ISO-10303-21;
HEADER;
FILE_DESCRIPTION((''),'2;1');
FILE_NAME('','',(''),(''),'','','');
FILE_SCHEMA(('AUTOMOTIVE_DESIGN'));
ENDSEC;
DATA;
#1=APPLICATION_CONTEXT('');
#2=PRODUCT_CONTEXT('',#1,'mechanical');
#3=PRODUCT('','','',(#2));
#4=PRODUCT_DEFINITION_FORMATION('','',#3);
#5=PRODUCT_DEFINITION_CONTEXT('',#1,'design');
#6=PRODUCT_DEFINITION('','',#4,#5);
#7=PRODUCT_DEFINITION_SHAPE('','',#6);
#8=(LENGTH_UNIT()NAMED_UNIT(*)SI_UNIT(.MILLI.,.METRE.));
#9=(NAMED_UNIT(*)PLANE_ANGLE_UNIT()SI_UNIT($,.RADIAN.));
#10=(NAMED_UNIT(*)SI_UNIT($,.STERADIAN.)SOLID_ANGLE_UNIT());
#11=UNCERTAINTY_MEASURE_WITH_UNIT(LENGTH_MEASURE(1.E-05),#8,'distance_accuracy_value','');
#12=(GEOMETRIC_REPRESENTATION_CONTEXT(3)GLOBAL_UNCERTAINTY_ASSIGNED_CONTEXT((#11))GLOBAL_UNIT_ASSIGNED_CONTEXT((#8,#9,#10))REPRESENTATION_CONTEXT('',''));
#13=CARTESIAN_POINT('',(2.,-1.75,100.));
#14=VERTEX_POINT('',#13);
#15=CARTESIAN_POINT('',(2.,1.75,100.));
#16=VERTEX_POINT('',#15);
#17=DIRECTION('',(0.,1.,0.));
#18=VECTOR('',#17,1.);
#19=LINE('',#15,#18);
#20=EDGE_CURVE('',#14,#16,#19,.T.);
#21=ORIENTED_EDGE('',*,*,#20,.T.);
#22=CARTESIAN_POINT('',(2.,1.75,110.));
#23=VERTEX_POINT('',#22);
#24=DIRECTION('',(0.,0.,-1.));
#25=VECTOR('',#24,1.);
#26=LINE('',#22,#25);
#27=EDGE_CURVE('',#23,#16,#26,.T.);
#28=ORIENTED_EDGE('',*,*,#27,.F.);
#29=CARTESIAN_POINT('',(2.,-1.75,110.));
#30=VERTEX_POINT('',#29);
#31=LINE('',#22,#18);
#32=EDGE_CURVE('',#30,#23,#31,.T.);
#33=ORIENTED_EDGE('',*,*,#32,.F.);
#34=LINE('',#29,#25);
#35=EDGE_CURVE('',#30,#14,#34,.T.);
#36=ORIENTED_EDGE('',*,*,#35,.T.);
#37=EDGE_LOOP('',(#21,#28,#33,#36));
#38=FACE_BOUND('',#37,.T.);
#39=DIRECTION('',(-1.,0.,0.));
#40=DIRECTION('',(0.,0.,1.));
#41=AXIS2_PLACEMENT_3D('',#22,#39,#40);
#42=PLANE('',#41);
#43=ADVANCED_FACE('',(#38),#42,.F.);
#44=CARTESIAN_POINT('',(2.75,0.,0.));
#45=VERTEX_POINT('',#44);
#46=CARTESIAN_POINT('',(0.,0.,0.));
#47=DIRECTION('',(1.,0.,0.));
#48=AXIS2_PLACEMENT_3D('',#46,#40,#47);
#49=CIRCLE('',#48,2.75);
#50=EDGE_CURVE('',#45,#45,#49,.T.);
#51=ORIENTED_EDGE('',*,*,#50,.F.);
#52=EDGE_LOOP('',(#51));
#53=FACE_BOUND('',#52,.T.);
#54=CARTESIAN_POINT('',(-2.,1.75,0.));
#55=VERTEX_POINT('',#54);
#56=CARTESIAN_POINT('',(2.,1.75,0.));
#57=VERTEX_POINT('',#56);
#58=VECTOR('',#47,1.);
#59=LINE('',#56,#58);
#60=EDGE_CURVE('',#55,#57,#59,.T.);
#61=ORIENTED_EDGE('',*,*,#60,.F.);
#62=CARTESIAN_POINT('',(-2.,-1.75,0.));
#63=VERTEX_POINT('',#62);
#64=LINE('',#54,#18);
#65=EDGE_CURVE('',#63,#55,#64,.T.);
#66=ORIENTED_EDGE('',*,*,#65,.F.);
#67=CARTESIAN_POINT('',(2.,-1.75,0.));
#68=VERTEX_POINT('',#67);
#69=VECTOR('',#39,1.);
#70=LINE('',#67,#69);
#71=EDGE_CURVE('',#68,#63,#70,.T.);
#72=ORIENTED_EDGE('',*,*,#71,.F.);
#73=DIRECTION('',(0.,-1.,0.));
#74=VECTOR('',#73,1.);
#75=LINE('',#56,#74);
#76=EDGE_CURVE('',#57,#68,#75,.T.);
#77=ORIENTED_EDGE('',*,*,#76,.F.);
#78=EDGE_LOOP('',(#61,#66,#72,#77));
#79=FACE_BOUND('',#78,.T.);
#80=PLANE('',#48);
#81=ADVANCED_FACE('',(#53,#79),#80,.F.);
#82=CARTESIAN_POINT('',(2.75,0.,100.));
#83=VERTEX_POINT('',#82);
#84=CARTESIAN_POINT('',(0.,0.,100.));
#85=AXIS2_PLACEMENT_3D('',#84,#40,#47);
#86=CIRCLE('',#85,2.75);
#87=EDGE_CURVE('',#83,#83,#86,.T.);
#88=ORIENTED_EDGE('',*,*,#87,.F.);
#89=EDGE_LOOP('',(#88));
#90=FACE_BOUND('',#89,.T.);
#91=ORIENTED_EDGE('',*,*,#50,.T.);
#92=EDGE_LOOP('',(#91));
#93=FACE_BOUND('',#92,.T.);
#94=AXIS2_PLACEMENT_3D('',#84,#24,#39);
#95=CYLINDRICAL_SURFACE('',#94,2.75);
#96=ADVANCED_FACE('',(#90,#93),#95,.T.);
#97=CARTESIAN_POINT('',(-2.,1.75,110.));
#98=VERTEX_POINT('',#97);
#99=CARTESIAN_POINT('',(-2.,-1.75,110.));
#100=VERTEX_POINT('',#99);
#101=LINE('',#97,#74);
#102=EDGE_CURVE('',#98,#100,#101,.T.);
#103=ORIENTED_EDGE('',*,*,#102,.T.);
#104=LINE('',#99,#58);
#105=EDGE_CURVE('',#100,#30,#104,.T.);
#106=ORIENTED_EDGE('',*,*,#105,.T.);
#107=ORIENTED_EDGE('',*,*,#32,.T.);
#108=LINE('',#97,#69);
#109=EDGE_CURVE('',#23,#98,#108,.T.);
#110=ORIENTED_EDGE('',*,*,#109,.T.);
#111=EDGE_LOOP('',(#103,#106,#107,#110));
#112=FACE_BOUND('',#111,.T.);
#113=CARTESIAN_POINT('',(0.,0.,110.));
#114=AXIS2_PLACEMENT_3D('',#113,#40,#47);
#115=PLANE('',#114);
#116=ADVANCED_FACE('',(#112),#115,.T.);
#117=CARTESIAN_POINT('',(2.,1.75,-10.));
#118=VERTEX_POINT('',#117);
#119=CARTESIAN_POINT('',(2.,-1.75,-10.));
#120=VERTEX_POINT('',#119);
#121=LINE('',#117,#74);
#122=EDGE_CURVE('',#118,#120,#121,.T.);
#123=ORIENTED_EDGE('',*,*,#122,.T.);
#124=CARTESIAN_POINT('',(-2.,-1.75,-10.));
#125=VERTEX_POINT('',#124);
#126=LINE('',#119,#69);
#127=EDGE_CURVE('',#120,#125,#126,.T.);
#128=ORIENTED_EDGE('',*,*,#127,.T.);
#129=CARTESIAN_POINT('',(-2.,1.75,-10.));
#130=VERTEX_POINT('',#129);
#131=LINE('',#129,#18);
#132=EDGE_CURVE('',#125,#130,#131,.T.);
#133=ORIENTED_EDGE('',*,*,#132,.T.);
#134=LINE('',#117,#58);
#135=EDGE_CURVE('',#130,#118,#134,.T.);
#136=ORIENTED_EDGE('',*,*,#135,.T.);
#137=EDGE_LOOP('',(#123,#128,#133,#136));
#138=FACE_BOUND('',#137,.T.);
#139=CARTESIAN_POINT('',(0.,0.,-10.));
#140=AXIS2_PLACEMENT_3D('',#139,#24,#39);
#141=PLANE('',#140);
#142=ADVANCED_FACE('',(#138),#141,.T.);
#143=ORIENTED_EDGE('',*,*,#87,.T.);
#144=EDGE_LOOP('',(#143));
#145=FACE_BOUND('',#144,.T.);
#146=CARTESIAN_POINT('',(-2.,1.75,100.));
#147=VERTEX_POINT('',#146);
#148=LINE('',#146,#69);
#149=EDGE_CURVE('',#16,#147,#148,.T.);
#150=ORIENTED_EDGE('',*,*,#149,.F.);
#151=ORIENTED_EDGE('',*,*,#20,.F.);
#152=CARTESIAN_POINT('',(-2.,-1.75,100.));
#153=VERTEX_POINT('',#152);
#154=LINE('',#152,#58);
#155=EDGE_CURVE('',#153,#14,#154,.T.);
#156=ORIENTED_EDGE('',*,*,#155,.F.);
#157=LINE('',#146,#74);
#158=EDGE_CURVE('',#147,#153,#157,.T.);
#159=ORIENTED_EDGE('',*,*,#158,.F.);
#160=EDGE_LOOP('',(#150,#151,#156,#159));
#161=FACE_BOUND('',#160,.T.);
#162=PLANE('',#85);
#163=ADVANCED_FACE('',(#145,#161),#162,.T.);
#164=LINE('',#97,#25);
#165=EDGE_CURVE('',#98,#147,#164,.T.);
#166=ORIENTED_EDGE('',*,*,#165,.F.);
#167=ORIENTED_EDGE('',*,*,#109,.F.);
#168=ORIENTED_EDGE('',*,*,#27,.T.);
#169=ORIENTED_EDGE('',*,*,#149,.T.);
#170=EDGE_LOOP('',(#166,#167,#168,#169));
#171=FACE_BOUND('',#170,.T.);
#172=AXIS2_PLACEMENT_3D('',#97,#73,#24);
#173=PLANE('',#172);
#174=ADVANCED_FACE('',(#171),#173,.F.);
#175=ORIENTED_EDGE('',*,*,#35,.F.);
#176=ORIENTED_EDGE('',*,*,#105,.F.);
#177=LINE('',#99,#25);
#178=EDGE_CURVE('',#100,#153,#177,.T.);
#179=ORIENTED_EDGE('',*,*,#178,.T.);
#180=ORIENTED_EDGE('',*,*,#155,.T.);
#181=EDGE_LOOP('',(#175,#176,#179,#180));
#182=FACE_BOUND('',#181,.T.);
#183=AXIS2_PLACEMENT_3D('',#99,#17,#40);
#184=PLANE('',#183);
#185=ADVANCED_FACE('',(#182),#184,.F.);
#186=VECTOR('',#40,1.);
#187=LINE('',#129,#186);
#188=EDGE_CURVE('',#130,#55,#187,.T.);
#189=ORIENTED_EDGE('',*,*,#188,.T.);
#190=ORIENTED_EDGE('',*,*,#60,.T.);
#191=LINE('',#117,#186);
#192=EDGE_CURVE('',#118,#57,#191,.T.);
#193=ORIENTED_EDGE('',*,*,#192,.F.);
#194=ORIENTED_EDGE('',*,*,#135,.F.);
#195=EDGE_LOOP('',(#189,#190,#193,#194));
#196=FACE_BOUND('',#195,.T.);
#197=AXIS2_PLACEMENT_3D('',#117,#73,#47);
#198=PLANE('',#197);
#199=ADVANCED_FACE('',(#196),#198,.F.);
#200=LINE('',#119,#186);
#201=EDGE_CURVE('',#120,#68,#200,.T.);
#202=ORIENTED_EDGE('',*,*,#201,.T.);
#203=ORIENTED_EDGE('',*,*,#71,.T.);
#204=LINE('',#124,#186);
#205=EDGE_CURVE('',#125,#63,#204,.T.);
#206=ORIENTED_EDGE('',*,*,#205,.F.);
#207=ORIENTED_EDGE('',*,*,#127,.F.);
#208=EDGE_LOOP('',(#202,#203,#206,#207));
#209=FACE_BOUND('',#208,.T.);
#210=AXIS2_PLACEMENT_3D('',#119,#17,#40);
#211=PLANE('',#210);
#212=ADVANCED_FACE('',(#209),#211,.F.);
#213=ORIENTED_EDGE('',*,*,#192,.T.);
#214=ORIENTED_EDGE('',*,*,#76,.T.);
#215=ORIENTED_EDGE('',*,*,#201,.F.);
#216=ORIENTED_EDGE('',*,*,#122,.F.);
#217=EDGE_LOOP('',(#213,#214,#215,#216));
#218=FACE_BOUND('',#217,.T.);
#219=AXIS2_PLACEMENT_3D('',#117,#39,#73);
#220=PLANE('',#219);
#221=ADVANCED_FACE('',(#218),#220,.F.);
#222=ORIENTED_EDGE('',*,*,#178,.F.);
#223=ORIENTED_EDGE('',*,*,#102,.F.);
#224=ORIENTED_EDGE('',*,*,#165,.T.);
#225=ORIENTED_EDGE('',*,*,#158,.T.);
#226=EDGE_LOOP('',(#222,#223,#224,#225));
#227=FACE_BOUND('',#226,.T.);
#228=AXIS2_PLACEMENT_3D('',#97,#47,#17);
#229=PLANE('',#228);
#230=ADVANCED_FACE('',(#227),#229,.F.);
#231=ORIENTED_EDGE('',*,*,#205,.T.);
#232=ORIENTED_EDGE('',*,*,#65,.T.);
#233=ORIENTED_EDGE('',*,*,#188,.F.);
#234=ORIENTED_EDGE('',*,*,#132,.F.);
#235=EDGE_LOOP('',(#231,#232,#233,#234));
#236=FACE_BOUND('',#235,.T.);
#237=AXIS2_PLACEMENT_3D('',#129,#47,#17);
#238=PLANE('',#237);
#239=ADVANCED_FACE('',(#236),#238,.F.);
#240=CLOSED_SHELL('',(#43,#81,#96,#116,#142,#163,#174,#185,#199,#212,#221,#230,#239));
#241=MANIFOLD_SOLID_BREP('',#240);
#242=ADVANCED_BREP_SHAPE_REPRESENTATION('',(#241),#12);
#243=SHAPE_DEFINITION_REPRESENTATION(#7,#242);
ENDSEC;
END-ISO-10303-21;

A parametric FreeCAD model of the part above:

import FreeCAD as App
import Part
import Sketcher
Q = App.Units.Quantity


def add_polygon(sketch, points):
    """Adds a closed chain of lines whose ends are joined by coincident constraints."""
    first, n = sketch.GeometryCount, len(points)
    for a, b in zip(points, points[1:] + points[:1]):
        sketch.addGeometry(Part.LineSegment(App.Vector(*a, 0), App.Vector(*b, 0)), False)
    for i in range(n):
        sketch.addConstraint(Sketcher.Constraint("Coincident", first + i, 2, first + (i + 1) % n, 1))

doc = App.newDocument("Part")
params = doc.addObject("Spreadsheet::Sheet", "Params")
for row, (alias, value) in enumerate([
    ("sketch1_diameter", "5.5 mm"),
    ("pad1_length", "100 mm"),
    ("sketch2_width", "4 mm"),
    ("sketch2_height", "3.5 mm"),
    ("pad2_length", "10 mm"),
    ("sketch3_width", "4 mm"),
    ("sketch3_height", "3.5 mm"),
    ("pad3_length", "10 mm"),
], start=1):
    params.set(f"A{row}", alias)
    params.set(f"B{row}", "=" + value)
    params.setAlias(f"B{row}", alias)

body = doc.addObject("PartDesign::Body", "Body")

sketch1 = body.newObject("Sketcher::SketchObject", "Sketch")
sketch1.AttachmentSupport = (doc.getObject("XY_Plane"), [""])
sketch1.MapMode = "FlatFace"
sketch1.addGeometry(Part.Circle(App.Vector(0, 0, 0), App.Vector(0, 0, 1), 2.8), False)
sketch1.addConstraint(Sketcher.Constraint("Coincident", 0, 3, -1, 1))
sketch1.addConstraint(Sketcher.Constraint("Diameter", 0, Q("5.5 mm")))
sketch1.setExpression("Constraints[1]", "Params.sketch1_diameter")
pad1 = body.newObject("PartDesign::Pad", "Pad")
pad1.Profile = sketch1
pad1.setExpression("Length", "Params.pad1_length")

sketch2 = body.newObject("Sketcher::SketchObject", "Sketch001")
sketch2.AttachmentSupport = (doc.getObject("XY_Plane"), [""])
sketch2.MapMode = "FlatFace"
sketch2.AttachmentOffset = App.Placement(App.Vector(0, 0, 100), App.Rotation())
add_polygon(sketch2, [(-2, 1.8), (-2, -1.8), (2, -1.8), (2, 1.8)])
sketch2.addConstraint(Sketcher.Constraint("Vertical", 0))
sketch2.addConstraint(Sketcher.Constraint("Horizontal", 1))
sketch2.addConstraint(Sketcher.Constraint("Vertical", 2))
sketch2.addConstraint(Sketcher.Constraint("Horizontal", 3))
sketch2.addConstraint(Sketcher.Constraint("Symmetric", 0, 2, 2, 2, -1, 1))
sketch2.addConstraint(Sketcher.Constraint("DistanceX", 1, 1, 1, 2, Q("4 mm")))
sketch2.addConstraint(Sketcher.Constraint("DistanceY", 0, 2, 0, 1, Q("3.5 mm")))
sketch2.setExpression("Constraints[9]", "Params.sketch2_width")
sketch2.setExpression("Constraints[10]", "Params.sketch2_height")
pad2 = body.newObject("PartDesign::Pad", "Pad001")
pad2.Profile = sketch2
pad2.setExpression("Length", "Params.pad2_length")

sketch3 = body.newObject("Sketcher::SketchObject", "Sketch002")
sketch3.AttachmentSupport = (doc.getObject("XY_Plane"), [""])
sketch3.MapMode = "FlatFace"
add_polygon(sketch3, [(2, 1.8), (2, -1.8), (-2, -1.8), (-2, 1.8)])
sketch3.addConstraint(Sketcher.Constraint("Vertical", 0))
sketch3.addConstraint(Sketcher.Constraint("Horizontal", 1))
sketch3.addConstraint(Sketcher.Constraint("Vertical", 2))
sketch3.addConstraint(Sketcher.Constraint("Horizontal", 3))
sketch3.addConstraint(Sketcher.Constraint("Symmetric", 0, 2, 2, 2, -1, 1))
sketch3.addConstraint(Sketcher.Constraint("DistanceX", 1, 2, 1, 1, Q("4 mm")))
sketch3.addConstraint(Sketcher.Constraint("DistanceY", 0, 2, 0, 1, Q("3.5 mm")))
sketch3.setExpression("Constraints[9]", "Params.sketch3_width")
sketch3.setExpression("Constraints[10]", "Params.sketch3_height")
pad3 = body.newObject("PartDesign::Pad", "Pad002")
pad3.Profile = sketch3
pad3.setExpression("Length", "Params.pad3_length")
pad3.Reversed = True

doc.recompute()
